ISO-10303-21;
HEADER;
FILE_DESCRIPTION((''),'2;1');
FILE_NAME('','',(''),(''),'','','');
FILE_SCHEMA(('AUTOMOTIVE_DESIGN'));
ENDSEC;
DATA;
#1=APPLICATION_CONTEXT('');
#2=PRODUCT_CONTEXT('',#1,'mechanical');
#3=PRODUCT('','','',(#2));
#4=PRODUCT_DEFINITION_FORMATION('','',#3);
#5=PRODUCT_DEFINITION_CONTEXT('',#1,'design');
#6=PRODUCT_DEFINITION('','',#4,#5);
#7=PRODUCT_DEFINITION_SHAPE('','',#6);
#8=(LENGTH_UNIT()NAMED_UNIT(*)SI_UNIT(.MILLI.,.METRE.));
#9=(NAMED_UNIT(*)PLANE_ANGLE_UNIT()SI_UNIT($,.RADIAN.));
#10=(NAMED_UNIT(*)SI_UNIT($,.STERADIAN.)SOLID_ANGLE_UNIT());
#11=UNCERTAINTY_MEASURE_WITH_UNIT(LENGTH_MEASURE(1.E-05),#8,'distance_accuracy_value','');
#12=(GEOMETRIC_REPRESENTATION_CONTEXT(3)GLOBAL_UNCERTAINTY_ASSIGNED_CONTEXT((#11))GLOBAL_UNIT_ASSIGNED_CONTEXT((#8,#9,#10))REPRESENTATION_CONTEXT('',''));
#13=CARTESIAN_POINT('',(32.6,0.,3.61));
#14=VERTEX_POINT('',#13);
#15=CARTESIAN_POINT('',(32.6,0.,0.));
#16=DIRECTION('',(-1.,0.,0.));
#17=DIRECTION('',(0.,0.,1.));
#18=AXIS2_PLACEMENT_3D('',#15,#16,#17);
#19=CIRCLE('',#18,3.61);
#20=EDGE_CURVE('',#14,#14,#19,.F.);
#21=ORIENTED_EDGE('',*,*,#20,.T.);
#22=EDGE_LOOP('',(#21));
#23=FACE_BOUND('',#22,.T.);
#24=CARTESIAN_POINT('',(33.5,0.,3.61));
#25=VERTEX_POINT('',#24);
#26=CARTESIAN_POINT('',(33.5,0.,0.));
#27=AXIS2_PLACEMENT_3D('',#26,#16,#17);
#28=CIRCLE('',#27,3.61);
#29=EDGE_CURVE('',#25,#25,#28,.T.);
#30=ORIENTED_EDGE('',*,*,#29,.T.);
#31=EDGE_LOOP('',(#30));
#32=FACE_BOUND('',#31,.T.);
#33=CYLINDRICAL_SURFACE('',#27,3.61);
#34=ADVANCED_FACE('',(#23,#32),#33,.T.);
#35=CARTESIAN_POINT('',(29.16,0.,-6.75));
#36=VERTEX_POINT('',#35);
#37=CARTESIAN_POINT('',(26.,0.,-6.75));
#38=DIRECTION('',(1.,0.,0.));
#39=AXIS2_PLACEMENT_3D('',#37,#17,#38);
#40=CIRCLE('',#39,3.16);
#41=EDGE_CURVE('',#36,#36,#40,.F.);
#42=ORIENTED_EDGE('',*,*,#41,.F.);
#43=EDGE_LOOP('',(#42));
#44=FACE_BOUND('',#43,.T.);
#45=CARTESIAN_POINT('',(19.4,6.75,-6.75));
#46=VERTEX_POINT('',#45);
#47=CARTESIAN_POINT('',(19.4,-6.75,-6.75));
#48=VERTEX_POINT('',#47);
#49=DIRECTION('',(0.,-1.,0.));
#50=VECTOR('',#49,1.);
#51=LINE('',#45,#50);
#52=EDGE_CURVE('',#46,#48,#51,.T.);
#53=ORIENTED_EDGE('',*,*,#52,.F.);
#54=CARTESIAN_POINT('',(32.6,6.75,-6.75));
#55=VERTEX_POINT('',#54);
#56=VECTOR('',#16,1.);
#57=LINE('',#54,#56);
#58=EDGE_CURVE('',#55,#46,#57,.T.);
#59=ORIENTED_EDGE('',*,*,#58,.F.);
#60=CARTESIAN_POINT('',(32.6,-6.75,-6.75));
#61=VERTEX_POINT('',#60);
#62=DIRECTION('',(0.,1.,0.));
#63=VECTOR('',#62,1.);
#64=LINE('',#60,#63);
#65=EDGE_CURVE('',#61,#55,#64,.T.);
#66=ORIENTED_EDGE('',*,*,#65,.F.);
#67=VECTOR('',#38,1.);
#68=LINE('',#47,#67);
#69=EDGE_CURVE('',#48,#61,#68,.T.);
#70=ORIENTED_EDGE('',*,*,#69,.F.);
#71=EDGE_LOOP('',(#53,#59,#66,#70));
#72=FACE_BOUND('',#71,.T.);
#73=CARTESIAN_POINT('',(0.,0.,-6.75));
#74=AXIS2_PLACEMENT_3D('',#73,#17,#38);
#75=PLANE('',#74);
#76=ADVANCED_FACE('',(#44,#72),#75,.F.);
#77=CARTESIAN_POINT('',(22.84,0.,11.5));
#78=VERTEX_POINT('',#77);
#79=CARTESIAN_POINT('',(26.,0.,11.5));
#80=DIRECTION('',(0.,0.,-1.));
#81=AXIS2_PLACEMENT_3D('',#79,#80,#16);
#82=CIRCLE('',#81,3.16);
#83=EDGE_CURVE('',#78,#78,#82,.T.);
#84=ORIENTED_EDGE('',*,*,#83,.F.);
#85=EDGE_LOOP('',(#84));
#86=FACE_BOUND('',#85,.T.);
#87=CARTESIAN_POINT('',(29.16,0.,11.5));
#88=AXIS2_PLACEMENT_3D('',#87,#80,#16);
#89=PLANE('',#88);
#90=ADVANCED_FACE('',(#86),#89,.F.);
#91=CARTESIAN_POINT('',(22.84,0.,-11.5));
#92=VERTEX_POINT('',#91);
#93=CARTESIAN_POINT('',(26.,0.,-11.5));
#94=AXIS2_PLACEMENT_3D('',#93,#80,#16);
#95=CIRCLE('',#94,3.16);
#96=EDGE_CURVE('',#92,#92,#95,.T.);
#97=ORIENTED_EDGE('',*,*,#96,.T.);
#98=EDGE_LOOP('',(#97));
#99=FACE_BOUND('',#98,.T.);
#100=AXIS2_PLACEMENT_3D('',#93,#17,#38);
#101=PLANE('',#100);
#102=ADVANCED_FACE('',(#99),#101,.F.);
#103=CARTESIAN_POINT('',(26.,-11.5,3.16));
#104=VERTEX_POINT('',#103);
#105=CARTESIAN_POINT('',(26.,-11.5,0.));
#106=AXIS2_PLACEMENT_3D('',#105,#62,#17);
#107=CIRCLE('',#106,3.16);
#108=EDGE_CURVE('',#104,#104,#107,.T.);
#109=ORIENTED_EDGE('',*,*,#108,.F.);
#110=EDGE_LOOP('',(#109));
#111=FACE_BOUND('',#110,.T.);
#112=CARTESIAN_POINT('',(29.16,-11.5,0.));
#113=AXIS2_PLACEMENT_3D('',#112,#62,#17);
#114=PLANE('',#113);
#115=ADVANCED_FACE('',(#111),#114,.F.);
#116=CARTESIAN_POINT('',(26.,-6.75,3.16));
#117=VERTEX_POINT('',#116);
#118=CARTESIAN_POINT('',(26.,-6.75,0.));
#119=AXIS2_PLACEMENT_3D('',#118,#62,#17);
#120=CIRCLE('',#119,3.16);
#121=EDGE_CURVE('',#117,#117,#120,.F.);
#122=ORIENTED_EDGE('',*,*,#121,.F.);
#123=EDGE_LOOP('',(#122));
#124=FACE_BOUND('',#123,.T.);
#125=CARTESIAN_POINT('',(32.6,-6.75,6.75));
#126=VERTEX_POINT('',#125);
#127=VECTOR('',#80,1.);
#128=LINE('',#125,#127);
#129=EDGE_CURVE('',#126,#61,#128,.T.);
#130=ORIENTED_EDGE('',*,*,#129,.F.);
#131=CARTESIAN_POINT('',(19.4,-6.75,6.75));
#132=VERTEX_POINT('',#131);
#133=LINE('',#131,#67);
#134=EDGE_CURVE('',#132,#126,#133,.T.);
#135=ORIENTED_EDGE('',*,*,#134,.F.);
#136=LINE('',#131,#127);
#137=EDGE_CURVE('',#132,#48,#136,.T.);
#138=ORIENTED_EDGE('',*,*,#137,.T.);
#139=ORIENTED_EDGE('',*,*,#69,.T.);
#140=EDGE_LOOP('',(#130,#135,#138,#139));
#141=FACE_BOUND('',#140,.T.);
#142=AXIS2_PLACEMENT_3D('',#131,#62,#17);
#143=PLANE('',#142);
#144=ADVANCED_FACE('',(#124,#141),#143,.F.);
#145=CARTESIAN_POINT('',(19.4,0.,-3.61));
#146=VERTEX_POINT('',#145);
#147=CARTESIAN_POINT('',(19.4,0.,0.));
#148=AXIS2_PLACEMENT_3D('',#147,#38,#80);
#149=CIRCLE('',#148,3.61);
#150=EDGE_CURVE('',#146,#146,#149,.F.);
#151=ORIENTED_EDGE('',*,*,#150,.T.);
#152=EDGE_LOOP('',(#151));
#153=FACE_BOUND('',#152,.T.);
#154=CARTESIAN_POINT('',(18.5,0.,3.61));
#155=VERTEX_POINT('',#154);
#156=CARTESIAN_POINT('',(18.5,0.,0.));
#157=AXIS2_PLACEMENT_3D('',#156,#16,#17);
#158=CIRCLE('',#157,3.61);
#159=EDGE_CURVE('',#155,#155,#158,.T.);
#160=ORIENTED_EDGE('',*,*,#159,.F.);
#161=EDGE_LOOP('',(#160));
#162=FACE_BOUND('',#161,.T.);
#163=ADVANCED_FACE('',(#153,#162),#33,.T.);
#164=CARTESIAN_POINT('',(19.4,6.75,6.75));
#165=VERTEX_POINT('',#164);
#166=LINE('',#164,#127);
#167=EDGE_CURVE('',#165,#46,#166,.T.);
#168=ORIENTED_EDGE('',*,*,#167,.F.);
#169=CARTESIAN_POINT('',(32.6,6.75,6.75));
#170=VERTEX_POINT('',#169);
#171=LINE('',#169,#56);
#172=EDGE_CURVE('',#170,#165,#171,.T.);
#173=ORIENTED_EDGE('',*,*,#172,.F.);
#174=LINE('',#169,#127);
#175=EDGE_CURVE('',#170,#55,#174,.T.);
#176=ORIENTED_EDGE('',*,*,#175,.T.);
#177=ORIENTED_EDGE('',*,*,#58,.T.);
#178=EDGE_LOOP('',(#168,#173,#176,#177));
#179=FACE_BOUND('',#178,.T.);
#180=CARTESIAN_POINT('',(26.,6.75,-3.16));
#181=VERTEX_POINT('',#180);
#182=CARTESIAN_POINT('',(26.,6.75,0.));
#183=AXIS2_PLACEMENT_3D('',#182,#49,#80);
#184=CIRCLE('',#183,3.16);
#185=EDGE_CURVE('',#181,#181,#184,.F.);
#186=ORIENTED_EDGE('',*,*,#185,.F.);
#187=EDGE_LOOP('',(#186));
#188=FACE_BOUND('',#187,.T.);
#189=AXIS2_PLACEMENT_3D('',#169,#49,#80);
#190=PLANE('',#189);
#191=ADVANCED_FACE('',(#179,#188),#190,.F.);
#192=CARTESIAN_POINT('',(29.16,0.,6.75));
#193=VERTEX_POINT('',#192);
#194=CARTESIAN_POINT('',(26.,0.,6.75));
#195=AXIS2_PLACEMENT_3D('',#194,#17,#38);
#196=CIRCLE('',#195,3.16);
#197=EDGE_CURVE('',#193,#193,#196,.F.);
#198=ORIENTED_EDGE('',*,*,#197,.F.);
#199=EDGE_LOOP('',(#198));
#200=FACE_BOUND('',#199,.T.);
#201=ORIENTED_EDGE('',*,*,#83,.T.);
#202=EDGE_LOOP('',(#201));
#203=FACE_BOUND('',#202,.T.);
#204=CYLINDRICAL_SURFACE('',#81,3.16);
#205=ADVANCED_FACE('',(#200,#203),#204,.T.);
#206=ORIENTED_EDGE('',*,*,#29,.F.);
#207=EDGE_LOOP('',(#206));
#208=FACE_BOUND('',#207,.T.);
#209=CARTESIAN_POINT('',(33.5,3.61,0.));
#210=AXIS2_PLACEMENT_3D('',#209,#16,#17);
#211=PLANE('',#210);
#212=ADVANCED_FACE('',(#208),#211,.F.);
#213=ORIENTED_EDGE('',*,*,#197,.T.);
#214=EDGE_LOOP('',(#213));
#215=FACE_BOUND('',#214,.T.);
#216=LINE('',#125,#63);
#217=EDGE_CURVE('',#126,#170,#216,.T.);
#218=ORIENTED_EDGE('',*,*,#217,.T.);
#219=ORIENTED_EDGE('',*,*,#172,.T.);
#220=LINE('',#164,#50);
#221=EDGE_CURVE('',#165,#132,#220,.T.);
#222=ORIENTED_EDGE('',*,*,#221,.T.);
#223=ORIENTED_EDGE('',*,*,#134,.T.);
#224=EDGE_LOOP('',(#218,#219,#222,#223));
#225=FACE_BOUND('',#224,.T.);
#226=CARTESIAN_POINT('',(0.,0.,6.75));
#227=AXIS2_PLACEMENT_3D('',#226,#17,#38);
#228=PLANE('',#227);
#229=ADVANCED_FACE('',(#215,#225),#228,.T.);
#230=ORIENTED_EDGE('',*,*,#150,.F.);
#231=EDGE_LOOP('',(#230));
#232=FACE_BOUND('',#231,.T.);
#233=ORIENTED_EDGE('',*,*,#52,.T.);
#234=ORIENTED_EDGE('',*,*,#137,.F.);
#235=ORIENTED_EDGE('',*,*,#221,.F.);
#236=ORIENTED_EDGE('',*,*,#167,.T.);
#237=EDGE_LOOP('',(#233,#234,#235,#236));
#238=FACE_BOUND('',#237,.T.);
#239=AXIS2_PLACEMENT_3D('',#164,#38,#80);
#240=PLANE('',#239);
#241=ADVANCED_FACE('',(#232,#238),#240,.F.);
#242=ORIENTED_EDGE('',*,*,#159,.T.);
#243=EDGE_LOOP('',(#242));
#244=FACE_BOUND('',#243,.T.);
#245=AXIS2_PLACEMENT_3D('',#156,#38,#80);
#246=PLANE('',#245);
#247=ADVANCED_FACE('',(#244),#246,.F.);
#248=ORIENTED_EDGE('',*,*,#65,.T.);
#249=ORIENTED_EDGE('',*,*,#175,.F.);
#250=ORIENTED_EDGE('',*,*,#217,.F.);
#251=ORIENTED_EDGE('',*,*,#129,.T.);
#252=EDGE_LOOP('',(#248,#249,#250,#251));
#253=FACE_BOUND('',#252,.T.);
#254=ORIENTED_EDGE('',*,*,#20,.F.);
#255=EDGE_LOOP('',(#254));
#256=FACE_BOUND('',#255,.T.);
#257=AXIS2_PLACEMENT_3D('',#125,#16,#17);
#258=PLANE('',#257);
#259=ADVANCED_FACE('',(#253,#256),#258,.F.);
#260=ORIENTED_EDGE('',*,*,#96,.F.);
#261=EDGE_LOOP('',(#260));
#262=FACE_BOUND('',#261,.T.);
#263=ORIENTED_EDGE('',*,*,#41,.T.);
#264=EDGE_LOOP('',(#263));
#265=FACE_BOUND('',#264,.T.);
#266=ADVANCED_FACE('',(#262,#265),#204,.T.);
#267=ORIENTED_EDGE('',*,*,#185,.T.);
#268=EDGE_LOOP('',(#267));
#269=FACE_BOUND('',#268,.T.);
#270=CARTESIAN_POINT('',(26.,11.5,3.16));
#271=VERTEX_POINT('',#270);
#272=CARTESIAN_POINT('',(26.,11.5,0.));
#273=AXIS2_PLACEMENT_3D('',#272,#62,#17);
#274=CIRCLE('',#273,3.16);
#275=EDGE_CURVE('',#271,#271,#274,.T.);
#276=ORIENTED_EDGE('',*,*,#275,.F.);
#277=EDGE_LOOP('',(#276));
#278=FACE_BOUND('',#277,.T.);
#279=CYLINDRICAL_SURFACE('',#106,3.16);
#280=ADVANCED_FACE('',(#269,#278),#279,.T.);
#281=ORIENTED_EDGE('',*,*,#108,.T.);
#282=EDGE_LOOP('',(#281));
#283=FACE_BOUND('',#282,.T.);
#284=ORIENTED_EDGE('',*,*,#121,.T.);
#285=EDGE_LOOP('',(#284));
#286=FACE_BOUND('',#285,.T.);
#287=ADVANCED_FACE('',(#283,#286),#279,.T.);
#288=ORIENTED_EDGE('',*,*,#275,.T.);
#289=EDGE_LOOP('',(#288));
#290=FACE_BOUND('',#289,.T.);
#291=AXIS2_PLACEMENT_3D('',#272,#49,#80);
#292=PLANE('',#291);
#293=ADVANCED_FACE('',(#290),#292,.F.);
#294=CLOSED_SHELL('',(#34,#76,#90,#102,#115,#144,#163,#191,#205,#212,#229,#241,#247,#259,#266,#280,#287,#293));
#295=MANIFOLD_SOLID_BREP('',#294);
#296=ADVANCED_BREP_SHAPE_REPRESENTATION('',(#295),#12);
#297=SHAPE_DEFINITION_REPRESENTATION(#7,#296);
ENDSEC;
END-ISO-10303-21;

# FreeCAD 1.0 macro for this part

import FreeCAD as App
import Part
import Sketcher
Q = App.Units.Quantity

doc = App.newDocument("Part")
body = doc.addObject("PartDesign::Body", "Body")

# Sketch on XY plane
sketch1 = body.newObject("Sketcher::SketchObject", "Sketch")
sketch1.AttachmentSupport = (doc.getObject("XY_Plane"), [""])
sketch1.MapMode = "FlatFace"
sketch1.addGeometry(Part.LineSegment(App.Vector(19, 7, 0), App.Vector(19, -7, 0)), False)
sketch1.addGeometry(Part.LineSegment(App.Vector(19, -7, 0), App.Vector(33, -7, 0)), False)
sketch1.addGeometry(Part.LineSegment(App.Vector(33, -7, 0), App.Vector(33, 7, 0)), False)
sketch1.addGeometry(Part.LineSegment(App.Vector(33, 7, 0), App.Vector(19, 7, 0)), False)
sketch1.addConstraint(Sketcher.Constraint("Coincident", 0, 2, 1, 1))
sketch1.addConstraint(Sketcher.Constraint("Coincident", 1, 2, 2, 1))
sketch1.addConstraint(Sketcher.Constraint("Coincident", 2, 2, 3, 1))
sketch1.addConstraint(Sketcher.Constraint("Coincident", 3, 2, 0, 1))
sketch1.addConstraint(Sketcher.Constraint("Vertical", 0))
sketch1.addConstraint(Sketcher.Constraint("Horizontal", 1))
sketch1.addConstraint(Sketcher.Constraint("Vertical", 2))
sketch1.addConstraint(Sketcher.Constraint("Horizontal", 3))
sketch1.addConstraint(Sketcher.Constraint("DistanceX", 1, 1, 1, 2, Q("13.2 mm")))
sketch1.addConstraint(Sketcher.Constraint("DistanceY", 0, 2, 0, 1, Q("13.5 mm")))
sketch1.addConstraint(Sketcher.Constraint("DistanceX", -1, 1, 0, 2, Q("19.4 mm")))
sketch1.addConstraint(Sketcher.Constraint("DistanceY", 0, 2, -1, 1, Q("6.75 mm")))
pad1 = body.newObject("PartDesign::Pad", "Pad")
pad1.Profile = sketch1
pad1.Type = "TwoLengths"
pad1.Length = 6.75
pad1.Length2 = 6.75

# Sketch on XY plane
sketch2 = body.newObject("Sketcher::SketchObject", "Sketch001")
sketch2.AttachmentSupport = (doc.getObject("XY_Plane"), [""])
sketch2.MapMode = "FlatFace"
sketch2.addGeometry(Part.LineSegment(App.Vector(26, 11.5, 0), App.Vector(26, -11.5, 0)), False)
sketch2.addGeometry(Part.LineSegment(App.Vector(26, -11.5, 0), App.Vector(29.2, -11.5, 0)), False)
sketch2.addGeometry(Part.LineSegment(App.Vector(29.2, -11.5, 0), App.Vector(29.2, 11.5, 0)), False)
sketch2.addGeometry(Part.LineSegment(App.Vector(29.2, 11.5, 0), App.Vector(26, 11.5, 0)), False)
sketch2.addGeometry(Part.LineSegment(App.Vector(26, -11.5, 0), App.Vector(26, 11.5, 0)), True)  # axis
sketch2.addConstraint(Sketcher.Constraint("Coincident", 0, 2, 1, 1))
sketch2.addConstraint(Sketcher.Constraint("Coincident", 1, 2, 2, 1))
sketch2.addConstraint(Sketcher.Constraint("Coincident", 2, 2, 3, 1))
sketch2.addConstraint(Sketcher.Constraint("Coincident", 3, 2, 0, 1))
sketch2.addConstraint(Sketcher.Constraint("Vertical", 0))
sketch2.addConstraint(Sketcher.Constraint("Horizontal", 1))
sketch2.addConstraint(Sketcher.Constraint("Vertical", 2))
sketch2.addConstraint(Sketcher.Constraint("Horizontal", 3))
sketch2.addConstraint(Sketcher.Constraint("Vertical", 4))
sketch2.addConstraint(Sketcher.Constraint("Coincident", 4, 1, 0, 2))
sketch2.addConstraint(Sketcher.Constraint("Horizontal", 2, 2, 4, 2))
sketch2.addConstraint(Sketcher.Constraint("DistanceY", 0, 2, 0, 1, Q("23 mm")))
sketch2.addConstraint(Sketcher.Constraint("DistanceX", -1, 1, 0, 2, Q("26 mm")))
sketch2.addConstraint(Sketcher.Constraint("DistanceX", 1, 1, 1, 2, Q("3.16 mm")))
sketch2.addConstraint(Sketcher.Constraint("DistanceY", 0, 2, -1, 1, Q("11.5 mm")))
revolution = body.newObject("PartDesign::Revolution", "Revolution")
revolution.Profile = sketch2
revolution.ReferenceAxis = (sketch2, ["Axis0"])
revolution.Angle = 360

# Sketch on XZ plane
sketch3 = body.newObject("Sketcher::SketchObject", "Sketch002")
sketch3.AttachmentSupport = (doc.getObject("XZ_Plane"), [""])
sketch3.MapMode = "FlatFace"
sketch3.addGeometry(Part.LineSegment(App.Vector(26, -11.5, 0), App.Vector(26, 11.5, 0)), False)
sketch3.addGeometry(Part.LineSegment(App.Vector(26, 11.5, 0), App.Vector(29.2, 11.5, 0)), False)
sketch3.addGeometry(Part.LineSegment(App.Vector(29.2, 11.5, 0), App.Vector(29.2, -11.5, 0)), False)
sketch3.addGeometry(Part.LineSegment(App.Vector(29.2, -11.5, 0), App.Vector(26, -11.5, 0)), False)
sketch3.addGeometry(Part.LineSegment(App.Vector(26, 11.5, 0), App.Vector(26, -11.5, 0)), True)  # axis
sketch3.addConstraint(Sketcher.Constraint("Coincident", 0, 2, 1, 1))
sketch3.addConstraint(Sketcher.Constraint("Coincident", 1, 2, 2, 1))
sketch3.addConstraint(Sketcher.Constraint("Coincident", 2, 2, 3, 1))
sketch3.addConstraint(Sketcher.Constraint("Coincident", 3, 2, 0, 1))
sketch3.addConstraint(Sketcher.Constraint("Vertical", 0))
sketch3.addConstraint(Sketcher.Constraint("Horizontal", 1))
sketch3.addConstraint(Sketcher.Constraint("Vertical", 2))
sketch3.addConstraint(Sketcher.Constraint("Horizontal", 3))
sketch3.addConstraint(Sketcher.Constraint("Vertical", 4))
sketch3.addConstraint(Sketcher.Constraint("Coincident", 4, 1, 0, 2))
sketch3.addConstraint(Sketcher.Constraint("Horizontal", 2, 2, 4, 2))
sketch3.addConstraint(Sketcher.Constraint("DistanceY", 0, 1, 0, 2, Q("23 mm")))
sketch3.addConstraint(Sketcher.Constraint("DistanceX", -1, 1, 0, 2, Q("26 mm")))
sketch3.addConstraint(Sketcher.Constraint("DistanceX", 1, 1, 1, 2, Q("3.16 mm")))
sketch3.addConstraint(Sketcher.Constraint("DistanceY", -1, 1, 0, 2, Q("11.5 mm")))
revolution2 = body.newObject("PartDesign::Revolution", "Revolution001")
revolution2.Profile = sketch3
revolution2.ReferenceAxis = (sketch3, ["Axis0"])
revolution2.Angle = 360

# Sketch on XY plane
sketch4 = body.newObject("Sketcher::SketchObject", "Sketch003")
sketch4.AttachmentSupport = (doc.getObject("XY_Plane"), [""])
sketch4.MapMode = "FlatFace"
sketch4.addGeometry(Part.LineSegment(App.Vector(18.5, 3.6, 0), App.Vector(18.5, 0, 0)), False)
sketch4.addGeometry(Part.LineSegment(App.Vector(18.5, 0, 0), App.Vector(33.5, 0, 0)), False)
sketch4.addGeometry(Part.LineSegment(App.Vector(33.5, 0, 0), App.Vector(33.5, 3.6, 0)), False)
sketch4.addGeometry(Part.LineSegment(App.Vector(33.5, 3.6, 0), App.Vector(18.5, 3.6, 0)), False)
sketch4.addConstraint(Sketcher.Constraint("Coincident", 0, 2, 1, 1))
sketch4.addConstraint(Sketcher.Constraint("Coincident", 1, 2, 2, 1))
sketch4.addConstraint(Sketcher.Constraint("Coincident", 2, 2, 3, 1))
sketch4.addConstraint(Sketcher.Constraint("Coincident", 3, 2, 0, 1))
sketch4.addConstraint(Sketcher.Constraint("Vertical", 0))
sketch4.addConstraint(Sketcher.Constraint("Horizontal", 1))
sketch4.addConstraint(Sketcher.Constraint("Vertical", 2))
sketch4.addConstraint(Sketcher.Constraint("Horizontal", 3))
sketch4.addConstraint(Sketcher.Constraint("PointOnObject", 0, 2, -1))
sketch4.addConstraint(Sketcher.Constraint("DistanceX", 1, 1, 1, 2, Q("15 mm")))
sketch4.addConstraint(Sketcher.Constraint("DistanceY", 0, 2, 0, 1, Q("3.61 mm")))
sketch4.addConstraint(Sketcher.Constraint("DistanceX", -1, 1, 0, 2, Q("18.5 mm")))
revolution3 = body.newObject("PartDesign::Revolution", "Revolution002")
revolution3.Profile = sketch4
revolution3.ReferenceAxis = (sketch4, ["H_Axis"])
revolution3.Angle = 360

doc.recompute()
